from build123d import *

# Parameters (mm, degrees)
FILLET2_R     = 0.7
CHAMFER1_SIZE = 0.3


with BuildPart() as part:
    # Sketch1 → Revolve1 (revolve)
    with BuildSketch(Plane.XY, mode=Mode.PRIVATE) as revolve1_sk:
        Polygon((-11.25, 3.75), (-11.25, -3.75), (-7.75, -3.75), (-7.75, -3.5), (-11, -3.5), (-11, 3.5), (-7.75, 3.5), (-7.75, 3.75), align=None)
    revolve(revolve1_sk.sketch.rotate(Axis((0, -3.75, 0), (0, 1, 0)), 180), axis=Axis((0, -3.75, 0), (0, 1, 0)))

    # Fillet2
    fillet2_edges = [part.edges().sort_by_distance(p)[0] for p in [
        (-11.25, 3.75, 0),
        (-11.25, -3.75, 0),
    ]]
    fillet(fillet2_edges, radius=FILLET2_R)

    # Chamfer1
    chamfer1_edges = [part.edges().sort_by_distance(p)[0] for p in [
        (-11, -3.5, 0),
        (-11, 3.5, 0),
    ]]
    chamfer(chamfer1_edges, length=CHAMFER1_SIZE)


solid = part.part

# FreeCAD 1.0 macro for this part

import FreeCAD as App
import Part
import Sketcher
from FreeCAD import Vector
Q = App.Units.Quantity


def edges_at(feature, points):
    """Names of the edges that pass closest to the given points."""
    edges = feature.Shape.Edges
    near = lambda p: min(range(len(edges)), key=lambda i: edges[i].distToShape(Part.Vertex(*p))[0])
    return sorted({f"Edge{near(p) + 1}" for p in points})

doc = App.newDocument("Part")
body = doc.addObject("PartDesign::Body", "Body")

sketch1 = doc.addObject("Sketcher::SketchObject", "Sketch")
body.addObject(sketch1)
sketch1.AttachmentSupport = (doc.XY_Plane, [""])
sketch1.MapMode = "FlatFace"
sketch1.addGeometry([
    Part.LineSegment(Vector(-11.25, 3.75, 0), Vector(-11.25, -3.75, 0)),
    Part.LineSegment(Vector(-11.25, -3.75, 0), Vector(-7.75, -3.75, 0)),
    Part.LineSegment(Vector(-7.75, -3.75, 0), Vector(-7.75, -3.5, 0)),
    Part.LineSegment(Vector(-7.75, -3.5, 0), Vector(-11, -3.5, 0)),
    Part.LineSegment(Vector(-11, -3.5, 0), Vector(-11, 3.5, 0)),
    Part.LineSegment(Vector(-11, 3.5, 0), Vector(-7.75, 3.5, 0)),
    Part.LineSegment(Vector(-7.75, 3.5, 0), Vector(-7.75, 3.75, 0)),
    Part.LineSegment(Vector(-7.75, 3.75, 0), Vector(-11.25, 3.75, 0)),
], False)
sketch1.addConstraint([
    Sketcher.Constraint("Coincident", 0, 2, 1, 1),
    Sketcher.Constraint("Coincident", 1, 2, 2, 1),
    Sketcher.Constraint("Coincident", 2, 2, 3, 1),
    Sketcher.Constraint("Coincident", 3, 2, 4, 1),
    Sketcher.Constraint("Coincident", 4, 2, 5, 1),
    Sketcher.Constraint("Coincident", 5, 2, 6, 1),
    Sketcher.Constraint("Coincident", 6, 2, 7, 1),
    Sketcher.Constraint("Coincident", 7, 2, 0, 1),
    Sketcher.Constraint("Vertical", 0),
    Sketcher.Constraint("Horizontal", 1),
    Sketcher.Constraint("Vertical", 2),
    Sketcher.Constraint("Horizontal", 3),
    Sketcher.Constraint("Vertical", 4),
    Sketcher.Constraint("Horizontal", 5),
    Sketcher.Constraint("Vertical", 6),
    Sketcher.Constraint("Horizontal", 7),
    Sketcher.Constraint("Symmetric", 2, 2, 5, 2, -1),
    Sketcher.Constraint("Equal", 2, 6),
    Sketcher.Constraint("DistanceY", 4, 1, 4, 2, Q("7 mm")),
    Sketcher.Constraint("DistanceX", 1, 1, 1, 2, Q("3.5 mm")),
    Sketcher.Constraint("DistanceY", 0, 2, 0, 1, Q("7.5 mm")),
    Sketcher.Constraint("DistanceX", 3, 2, -1, 1, Q("11 mm")),
    Sketcher.Constraint("DistanceX", 3, 2, 3, 1, Q("3.25 mm")),
])
revolution = doc.addObject("PartDesign::Revolution", "Revolution")
body.addObject(revolution)
revolution.Profile = sketch1
revolution.ReferenceAxis = (sketch1, ["V_Axis"])
revolution.Angle = 360
doc.recompute()

fillet = doc.addObject("PartDesign::Fillet", "Fillet")
body.addObject(fillet)
fillet.Base = (revolution, edges_at(revolution, [(-11.25, 3.75, 0), (-11.25, -3.75, 0)]))
fillet.Radius = 0.7
doc.recompute()

chamfer = doc.addObject("PartDesign::Chamfer", "Chamfer")
body.addObject(chamfer)
chamfer.Base = (fillet, edges_at(fillet, [(-11, -3.5, 0), (-11, 3.5, 0)]))
chamfer.Size = 0.3

doc.recompute()
